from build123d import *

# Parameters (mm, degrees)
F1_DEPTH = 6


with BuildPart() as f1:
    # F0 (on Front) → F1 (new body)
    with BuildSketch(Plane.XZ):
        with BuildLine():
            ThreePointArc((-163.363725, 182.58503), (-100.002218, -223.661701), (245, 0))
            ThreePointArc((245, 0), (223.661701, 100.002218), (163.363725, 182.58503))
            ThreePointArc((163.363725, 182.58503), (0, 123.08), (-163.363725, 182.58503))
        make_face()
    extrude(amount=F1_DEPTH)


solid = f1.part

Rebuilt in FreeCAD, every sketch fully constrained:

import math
import FreeCAD as App
import Part
import Sketcher

V = App.Vector

doc = App.newDocument("Part")
params = doc.addObject("Spreadsheet::Sheet", "Params")
for row, (alias, value) in enumerate([
    ("sketch1_radius", "245 mm"),
    ("sketch1_radius2", "254 mm"),
    ("pad1_length", "6 mm"),
], start=1):
    params.set(f"A{row}", alias)
    params.set(f"B{row}", "=" + value)
    params.setAlias(f"B{row}", alias)

body = doc.addObject("PartDesign::Body", "Body")

# Sketch on XZ plane
sketch1 = body.newObject("Sketcher::SketchObject", "Sketch")
sketch1.AttachmentSupport = (doc.getObject("XZ_Plane"), [""])
sketch1.MapMode = "FlatFace"
sketch1.addGeometry(Part.ArcOfCircle(Part.Circle(V(0, 0, 0), V(0, 0, 1), 245), math.radians(132), math.radians(360)), False)
sketch1.addGeometry(Part.ArcOfCircle(Part.Circle(V(0, 0, 0), V(0, 0, 1), 245), math.radians(0), math.radians(48)), False)
sketch1.addGeometry(Part.ArcOfCircle(Part.Circle(V(0, 377, 0), V(0, 0, 1), 254), math.radians(-130), math.radians(-50)), False)
sketch1.addConstraint(Sketcher.Constraint("Tangent", 0, 2, 1, 1))
sketch1.addConstraint(Sketcher.Constraint("Coincident", 1, 2, 2, 2))
sketch1.addConstraint(Sketcher.Constraint("Coincident", 2, 1, 0, 1))
sketch1.addConstraint(Sketcher.Constraint("Coincident", 0, 3, -1, 1))
sketch1.addConstraint(Sketcher.Constraint("PointOnObject", 2, 3, -2))
sketch1.addConstraint(Sketcher.Constraint("PointOnObject", 0, 2, -1))
sketch1.addConstraint(Sketcher.Constraint("Radius", 0, 245.0))
sketch1.addConstraint(Sketcher.Constraint("Radius", 2, 254.0))
sketch1.addConstraint(Sketcher.Constraint("DistanceY", -1, 1, 2, 3, 377.08))
sketch1.addConstraint(Sketcher.Constraint("Radius", 1, 244.999996))
sketch1.setExpression("Constraints[6]", "Params.sketch1_radius")
sketch1.setExpression("Constraints[7]", "Params.sketch1_radius2")
pad1 = body.newObject("PartDesign::Pad", "Pad")
pad1.Profile = sketch1
pad1.setExpression("Length", "Params.pad1_length")

doc.recompute()
